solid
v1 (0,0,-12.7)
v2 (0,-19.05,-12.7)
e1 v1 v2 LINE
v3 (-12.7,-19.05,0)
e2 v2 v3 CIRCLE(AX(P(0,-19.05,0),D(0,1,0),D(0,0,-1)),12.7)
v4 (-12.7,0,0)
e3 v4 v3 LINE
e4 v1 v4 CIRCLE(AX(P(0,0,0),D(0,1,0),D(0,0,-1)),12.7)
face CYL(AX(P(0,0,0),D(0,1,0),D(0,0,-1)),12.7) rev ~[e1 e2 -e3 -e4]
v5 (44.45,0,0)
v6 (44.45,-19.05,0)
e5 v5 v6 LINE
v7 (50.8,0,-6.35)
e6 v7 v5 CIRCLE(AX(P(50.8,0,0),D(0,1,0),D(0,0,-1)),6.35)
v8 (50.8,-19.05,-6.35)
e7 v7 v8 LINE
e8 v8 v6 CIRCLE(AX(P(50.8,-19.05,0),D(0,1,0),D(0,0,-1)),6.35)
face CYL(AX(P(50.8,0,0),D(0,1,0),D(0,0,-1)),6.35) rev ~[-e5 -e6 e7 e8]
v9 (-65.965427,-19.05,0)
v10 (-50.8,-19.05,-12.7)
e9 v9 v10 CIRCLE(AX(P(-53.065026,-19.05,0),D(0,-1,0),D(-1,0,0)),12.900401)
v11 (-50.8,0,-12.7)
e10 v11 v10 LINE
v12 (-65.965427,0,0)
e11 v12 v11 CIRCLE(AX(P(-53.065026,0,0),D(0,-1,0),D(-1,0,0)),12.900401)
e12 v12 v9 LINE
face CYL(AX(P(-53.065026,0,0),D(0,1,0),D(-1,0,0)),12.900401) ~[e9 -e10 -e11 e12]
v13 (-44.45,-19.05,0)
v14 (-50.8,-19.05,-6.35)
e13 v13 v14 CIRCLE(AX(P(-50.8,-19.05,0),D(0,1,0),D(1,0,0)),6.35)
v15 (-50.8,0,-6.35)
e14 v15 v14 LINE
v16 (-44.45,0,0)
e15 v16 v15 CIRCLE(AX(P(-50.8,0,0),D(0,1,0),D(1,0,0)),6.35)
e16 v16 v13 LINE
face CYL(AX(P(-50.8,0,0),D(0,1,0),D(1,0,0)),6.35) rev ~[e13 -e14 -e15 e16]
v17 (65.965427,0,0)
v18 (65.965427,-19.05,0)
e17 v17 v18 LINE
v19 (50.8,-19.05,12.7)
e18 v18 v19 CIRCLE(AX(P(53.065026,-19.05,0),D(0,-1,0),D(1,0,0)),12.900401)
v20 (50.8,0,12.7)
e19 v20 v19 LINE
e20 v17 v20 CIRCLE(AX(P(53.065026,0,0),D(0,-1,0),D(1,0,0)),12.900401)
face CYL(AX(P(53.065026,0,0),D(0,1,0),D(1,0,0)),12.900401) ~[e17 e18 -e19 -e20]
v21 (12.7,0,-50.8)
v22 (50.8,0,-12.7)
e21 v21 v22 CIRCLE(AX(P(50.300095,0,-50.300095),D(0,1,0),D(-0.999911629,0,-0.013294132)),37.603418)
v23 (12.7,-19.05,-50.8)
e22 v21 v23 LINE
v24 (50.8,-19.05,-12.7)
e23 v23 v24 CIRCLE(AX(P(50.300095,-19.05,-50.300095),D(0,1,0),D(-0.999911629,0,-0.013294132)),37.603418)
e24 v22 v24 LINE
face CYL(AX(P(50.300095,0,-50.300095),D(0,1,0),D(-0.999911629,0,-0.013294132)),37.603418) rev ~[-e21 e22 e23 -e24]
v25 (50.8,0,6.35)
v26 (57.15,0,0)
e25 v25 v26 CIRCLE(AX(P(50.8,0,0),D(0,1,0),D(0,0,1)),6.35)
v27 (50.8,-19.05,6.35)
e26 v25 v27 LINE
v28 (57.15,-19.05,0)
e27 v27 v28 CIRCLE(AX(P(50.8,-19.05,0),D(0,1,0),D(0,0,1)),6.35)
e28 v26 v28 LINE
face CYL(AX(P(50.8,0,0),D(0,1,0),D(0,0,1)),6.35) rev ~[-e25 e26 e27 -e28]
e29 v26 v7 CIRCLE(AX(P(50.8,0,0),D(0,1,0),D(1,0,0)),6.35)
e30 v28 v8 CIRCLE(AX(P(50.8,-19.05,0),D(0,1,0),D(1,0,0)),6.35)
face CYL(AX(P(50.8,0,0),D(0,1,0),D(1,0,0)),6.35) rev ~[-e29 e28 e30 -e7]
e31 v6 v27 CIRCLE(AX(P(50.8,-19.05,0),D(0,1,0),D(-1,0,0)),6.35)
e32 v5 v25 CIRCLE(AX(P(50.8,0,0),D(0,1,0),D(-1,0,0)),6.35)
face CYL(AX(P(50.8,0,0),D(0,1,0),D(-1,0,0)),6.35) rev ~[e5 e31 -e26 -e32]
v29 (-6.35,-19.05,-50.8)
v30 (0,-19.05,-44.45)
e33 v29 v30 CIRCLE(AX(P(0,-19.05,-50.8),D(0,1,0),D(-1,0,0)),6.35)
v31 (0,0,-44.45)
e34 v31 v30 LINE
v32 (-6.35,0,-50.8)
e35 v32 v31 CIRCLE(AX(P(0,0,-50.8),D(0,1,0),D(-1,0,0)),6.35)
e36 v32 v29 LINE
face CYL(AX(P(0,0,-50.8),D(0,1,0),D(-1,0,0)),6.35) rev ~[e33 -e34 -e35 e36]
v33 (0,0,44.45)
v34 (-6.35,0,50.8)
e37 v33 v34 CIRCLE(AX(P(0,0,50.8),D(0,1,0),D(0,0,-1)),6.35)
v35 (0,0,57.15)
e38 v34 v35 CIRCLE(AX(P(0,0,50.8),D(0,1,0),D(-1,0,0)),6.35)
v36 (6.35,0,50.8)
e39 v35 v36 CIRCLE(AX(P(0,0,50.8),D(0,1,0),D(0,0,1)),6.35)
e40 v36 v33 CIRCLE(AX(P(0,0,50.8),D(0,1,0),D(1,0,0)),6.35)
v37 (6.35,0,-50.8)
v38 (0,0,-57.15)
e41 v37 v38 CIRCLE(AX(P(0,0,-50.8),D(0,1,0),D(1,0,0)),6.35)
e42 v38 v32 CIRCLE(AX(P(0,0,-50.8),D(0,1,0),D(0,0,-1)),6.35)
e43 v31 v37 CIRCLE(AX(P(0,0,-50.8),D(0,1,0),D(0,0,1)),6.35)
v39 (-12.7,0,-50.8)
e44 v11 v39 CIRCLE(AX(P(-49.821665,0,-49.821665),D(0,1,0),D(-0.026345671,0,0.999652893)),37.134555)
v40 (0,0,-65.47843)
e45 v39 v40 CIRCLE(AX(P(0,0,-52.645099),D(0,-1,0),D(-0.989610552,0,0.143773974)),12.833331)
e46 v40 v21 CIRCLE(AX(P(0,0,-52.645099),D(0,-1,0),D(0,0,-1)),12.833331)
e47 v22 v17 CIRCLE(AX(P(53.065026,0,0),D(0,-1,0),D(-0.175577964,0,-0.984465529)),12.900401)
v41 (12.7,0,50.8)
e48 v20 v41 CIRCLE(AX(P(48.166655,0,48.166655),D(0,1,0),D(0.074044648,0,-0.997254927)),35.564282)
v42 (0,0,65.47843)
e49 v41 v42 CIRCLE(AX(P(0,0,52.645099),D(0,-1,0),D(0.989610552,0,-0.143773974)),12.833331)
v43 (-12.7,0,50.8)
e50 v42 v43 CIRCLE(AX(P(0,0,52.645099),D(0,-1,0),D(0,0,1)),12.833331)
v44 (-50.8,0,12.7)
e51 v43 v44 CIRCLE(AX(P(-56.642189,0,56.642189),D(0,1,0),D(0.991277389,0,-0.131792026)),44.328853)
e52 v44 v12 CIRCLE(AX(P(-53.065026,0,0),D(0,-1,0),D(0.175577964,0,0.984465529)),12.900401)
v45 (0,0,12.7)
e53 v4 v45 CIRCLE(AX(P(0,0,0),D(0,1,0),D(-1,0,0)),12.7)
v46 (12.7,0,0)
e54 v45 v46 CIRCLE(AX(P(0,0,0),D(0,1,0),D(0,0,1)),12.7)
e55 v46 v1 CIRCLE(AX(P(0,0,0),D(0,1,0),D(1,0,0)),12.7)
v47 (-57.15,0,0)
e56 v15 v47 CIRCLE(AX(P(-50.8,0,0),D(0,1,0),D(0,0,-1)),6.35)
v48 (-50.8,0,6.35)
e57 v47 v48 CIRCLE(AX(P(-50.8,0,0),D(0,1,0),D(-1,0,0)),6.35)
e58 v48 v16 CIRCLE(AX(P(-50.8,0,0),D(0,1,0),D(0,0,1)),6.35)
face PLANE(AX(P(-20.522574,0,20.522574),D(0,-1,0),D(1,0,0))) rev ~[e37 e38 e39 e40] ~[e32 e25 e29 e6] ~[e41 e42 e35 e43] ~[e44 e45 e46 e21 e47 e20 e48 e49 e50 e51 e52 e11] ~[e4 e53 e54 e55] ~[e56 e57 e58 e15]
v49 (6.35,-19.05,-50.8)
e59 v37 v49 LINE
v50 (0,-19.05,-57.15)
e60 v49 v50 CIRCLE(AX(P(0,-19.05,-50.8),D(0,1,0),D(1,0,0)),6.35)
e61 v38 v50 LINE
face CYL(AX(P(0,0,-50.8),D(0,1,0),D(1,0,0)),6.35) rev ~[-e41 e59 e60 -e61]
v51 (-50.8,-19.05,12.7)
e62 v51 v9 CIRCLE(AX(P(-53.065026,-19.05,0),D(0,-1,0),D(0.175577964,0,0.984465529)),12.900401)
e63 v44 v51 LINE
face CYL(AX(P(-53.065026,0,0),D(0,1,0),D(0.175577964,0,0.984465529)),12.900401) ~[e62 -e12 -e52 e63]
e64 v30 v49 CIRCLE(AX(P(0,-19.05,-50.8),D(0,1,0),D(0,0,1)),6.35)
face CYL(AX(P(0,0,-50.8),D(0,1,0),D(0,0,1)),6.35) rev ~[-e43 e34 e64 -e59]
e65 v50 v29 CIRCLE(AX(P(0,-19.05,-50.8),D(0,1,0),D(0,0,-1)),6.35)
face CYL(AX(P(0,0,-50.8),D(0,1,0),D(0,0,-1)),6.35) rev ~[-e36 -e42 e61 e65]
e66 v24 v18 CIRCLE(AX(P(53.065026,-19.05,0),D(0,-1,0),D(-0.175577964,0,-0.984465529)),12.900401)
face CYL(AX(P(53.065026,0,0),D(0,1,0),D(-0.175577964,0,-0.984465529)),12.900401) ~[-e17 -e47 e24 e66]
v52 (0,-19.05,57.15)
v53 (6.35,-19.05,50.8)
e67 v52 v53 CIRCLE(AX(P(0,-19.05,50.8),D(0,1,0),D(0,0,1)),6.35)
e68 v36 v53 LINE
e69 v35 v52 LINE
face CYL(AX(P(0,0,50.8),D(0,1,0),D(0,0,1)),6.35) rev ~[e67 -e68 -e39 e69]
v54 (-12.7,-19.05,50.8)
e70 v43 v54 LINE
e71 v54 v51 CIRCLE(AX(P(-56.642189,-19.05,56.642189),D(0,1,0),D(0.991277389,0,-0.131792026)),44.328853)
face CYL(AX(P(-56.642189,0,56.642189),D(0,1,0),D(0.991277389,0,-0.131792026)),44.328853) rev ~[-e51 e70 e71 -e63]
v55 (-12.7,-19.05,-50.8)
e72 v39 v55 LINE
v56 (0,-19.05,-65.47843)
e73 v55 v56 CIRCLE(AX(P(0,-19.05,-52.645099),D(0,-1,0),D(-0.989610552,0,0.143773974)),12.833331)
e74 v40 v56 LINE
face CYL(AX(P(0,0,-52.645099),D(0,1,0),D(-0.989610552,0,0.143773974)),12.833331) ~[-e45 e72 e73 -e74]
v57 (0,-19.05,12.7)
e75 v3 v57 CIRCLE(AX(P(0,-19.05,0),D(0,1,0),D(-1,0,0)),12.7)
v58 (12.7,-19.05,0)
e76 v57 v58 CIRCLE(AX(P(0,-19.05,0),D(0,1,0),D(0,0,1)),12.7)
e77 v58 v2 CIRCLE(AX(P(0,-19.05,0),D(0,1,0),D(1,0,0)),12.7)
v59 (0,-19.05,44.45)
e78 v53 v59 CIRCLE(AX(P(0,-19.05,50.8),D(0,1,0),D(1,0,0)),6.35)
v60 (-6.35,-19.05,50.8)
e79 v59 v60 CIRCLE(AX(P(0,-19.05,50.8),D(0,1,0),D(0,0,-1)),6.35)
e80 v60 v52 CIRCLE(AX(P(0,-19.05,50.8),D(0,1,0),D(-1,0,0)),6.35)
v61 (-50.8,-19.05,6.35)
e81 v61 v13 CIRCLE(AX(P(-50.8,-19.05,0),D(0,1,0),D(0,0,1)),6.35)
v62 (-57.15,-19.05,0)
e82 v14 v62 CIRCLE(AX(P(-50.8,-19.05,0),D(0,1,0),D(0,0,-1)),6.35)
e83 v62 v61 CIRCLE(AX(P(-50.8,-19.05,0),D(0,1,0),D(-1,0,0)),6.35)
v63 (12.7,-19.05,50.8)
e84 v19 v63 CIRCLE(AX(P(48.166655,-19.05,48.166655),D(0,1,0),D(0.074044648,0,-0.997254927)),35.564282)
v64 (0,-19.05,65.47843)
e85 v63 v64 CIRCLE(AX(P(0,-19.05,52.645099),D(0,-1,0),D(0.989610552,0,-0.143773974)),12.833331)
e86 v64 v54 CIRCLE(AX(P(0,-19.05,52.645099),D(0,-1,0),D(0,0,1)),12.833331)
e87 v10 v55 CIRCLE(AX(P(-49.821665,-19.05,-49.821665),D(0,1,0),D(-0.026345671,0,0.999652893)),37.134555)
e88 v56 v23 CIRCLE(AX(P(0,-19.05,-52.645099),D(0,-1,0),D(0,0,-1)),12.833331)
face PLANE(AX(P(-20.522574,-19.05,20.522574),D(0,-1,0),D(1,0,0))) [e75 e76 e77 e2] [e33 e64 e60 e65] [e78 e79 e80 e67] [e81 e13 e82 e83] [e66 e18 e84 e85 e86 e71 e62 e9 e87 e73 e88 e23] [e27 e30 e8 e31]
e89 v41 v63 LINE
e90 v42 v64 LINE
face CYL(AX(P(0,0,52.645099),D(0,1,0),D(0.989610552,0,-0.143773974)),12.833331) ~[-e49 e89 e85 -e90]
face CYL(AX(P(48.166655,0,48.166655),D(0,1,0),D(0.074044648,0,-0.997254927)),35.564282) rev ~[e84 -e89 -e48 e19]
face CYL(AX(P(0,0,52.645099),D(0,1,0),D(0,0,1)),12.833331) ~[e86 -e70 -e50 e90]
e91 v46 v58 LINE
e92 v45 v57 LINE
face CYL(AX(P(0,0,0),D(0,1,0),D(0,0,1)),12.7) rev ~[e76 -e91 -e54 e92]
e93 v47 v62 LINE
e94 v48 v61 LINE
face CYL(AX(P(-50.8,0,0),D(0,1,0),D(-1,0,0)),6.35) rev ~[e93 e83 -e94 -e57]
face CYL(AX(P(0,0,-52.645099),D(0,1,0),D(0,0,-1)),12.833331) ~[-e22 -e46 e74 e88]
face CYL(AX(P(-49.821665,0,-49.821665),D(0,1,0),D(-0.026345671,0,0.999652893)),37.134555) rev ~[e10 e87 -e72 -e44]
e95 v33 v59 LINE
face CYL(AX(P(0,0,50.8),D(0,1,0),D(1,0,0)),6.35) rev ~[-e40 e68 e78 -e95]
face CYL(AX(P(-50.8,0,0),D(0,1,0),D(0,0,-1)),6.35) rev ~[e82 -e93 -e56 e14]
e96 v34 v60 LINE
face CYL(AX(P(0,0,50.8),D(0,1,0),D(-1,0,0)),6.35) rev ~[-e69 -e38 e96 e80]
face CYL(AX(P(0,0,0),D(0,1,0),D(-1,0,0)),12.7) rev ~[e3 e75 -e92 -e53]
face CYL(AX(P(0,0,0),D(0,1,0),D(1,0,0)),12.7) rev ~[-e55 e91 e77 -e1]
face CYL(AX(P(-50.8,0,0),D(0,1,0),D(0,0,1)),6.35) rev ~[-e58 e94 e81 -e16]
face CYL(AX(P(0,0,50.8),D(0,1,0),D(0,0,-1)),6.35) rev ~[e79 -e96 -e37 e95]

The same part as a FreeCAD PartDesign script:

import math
import FreeCAD as App
import Part
import Sketcher

V = App.Vector
Q = App.Units.Quantity

doc = App.newDocument("Part")
params = doc.addObject("Spreadsheet::Sheet", "Params")
for row, (alias, value) in enumerate([
    ("sketch1_radius", "0.5 in"),
    ("sketch1_radius2", "0.25 in"),
    ("pad1_length", "0.75 in"),
], start=1):
    params.set(f"A{row}", alias)
    params.set(f"B{row}", "=" + value)
    params.setAlias(f"B{row}", alias)

body = doc.addObject("PartDesign::Body", "Body")

# Sketch on XZ plane
sketch1 = doc.addObject("Sketcher::SketchObject", "Sketch")
body.addObject(sketch1)
sketch1.AttachmentSupport = (doc.XZ_Plane, [""])
sketch1.MapMode = "FlatFace"
sketch1.addGeometry([
    Part.ArcOfCircle(Part.Circle(V(48, 48, 0), V(0, 0, 1), 36), math.radians(176), math.radians(274)),  # 0
    Part.ArcOfCircle(Part.Circle(V(0, 53, 0), V(0, 0, 1), 13), math.radians(-8), math.radians(90)),  # 1
    Part.ArcOfCircle(Part.Circle(V(0, 53, 0), V(0, 0, 1), 13), math.radians(90), math.radians(188)),  # 2
    Part.ArcOfCircle(Part.Circle(V(-57, 57, 0), V(0, 0, 1), 44), math.radians(-82), math.radians(-8)),  # 3
    Part.ArcOfCircle(Part.Circle(V(-53, 0, 0), V(0, 0, 1), 13), math.radians(80), math.radians(180)),  # 4
    Part.ArcOfCircle(Part.Circle(V(-53, 0, 0), V(0, 0, 1), 13), math.radians(180), math.radians(280)),  # 5
    Part.ArcOfCircle(Part.Circle(V(-50, -50, 0), V(0, 0, 1), 37), math.radians(-2), math.radians(92)),  # 6
    Part.ArcOfCircle(Part.Circle(V(0, -53, 0), V(0, 0, 1), 13), math.radians(172), math.radians(270)),  # 7
    Part.ArcOfCircle(Part.Circle(V(0, -53, 0), V(0, 0, 1), 13), math.radians(-90), math.radians(8)),  # 8
    Part.ArcOfCircle(Part.Circle(V(50, -50, 0), V(0, 0, 1), 38), math.radians(89), math.radians(181)),  # 9
    Part.ArcOfCircle(Part.Circle(V(53, 0, 0), V(0, 0, 1), 13), math.radians(-100), math.radians(0)),  # 10
    Part.ArcOfCircle(Part.Circle(V(53, 0, 0), V(0, 0, 1), 13), math.radians(0), math.radians(100)),  # 11
    Part.ArcOfCircle(Part.Circle(V(0, 0, 0), V(0, 0, 1), 13), math.radians(90), math.radians(180)),  # 12
    Part.ArcOfCircle(Part.Circle(V(0, 0, 0), V(0, 0, 1), 13), math.radians(0), math.radians(90)),  # 13
    Part.ArcOfCircle(Part.Circle(V(0, 0, 0), V(0, 0, 1), 13), math.radians(-90), math.radians(0)),  # 14
    Part.ArcOfCircle(Part.Circle(V(0, 0, 0), V(0, 0, 1), 13), math.radians(180), math.radians(270)),  # 15
    Part.ArcOfCircle(Part.Circle(V(51, 0, 0), V(0, 0, 1), 6), math.radians(90), math.radians(180)),  # 16
    Part.ArcOfCircle(Part.Circle(V(51, 0, 0), V(0, 0, 1), 6), math.radians(0), math.radians(90)),  # 17
    Part.ArcOfCircle(Part.Circle(V(51, 0, 0), V(0, 0, 1), 6), math.radians(-90), math.radians(0)),  # 18
    Part.ArcOfCircle(Part.Circle(V(51, 0, 0), V(0, 0, 1), 6), math.radians(180), math.radians(270)),  # 19
    Part.ArcOfCircle(Part.Circle(V(0, -51, 0), V(0, 0, 1), 6), math.radians(90), math.radians(180)),  # 20
    Part.ArcOfCircle(Part.Circle(V(0, -51, 0), V(0, 0, 1), 6), math.radians(0), math.radians(90)),  # 21
    Part.ArcOfCircle(Part.Circle(V(0, -51, 0), V(0, 0, 1), 6), math.radians(-90), math.radians(0)),  # 22
    Part.ArcOfCircle(Part.Circle(V(0, -51, 0), V(0, 0, 1), 6), math.radians(180), math.radians(270)),  # 23
    Part.ArcOfCircle(Part.Circle(V(-51, 0, 0), V(0, 0, 1), 6), math.radians(180), math.radians(270)),  # 24
    Part.ArcOfCircle(Part.Circle(V(-51, 0, 0), V(0, 0, 1), 6), math.radians(90), math.radians(180)),  # 25
    Part.ArcOfCircle(Part.Circle(V(-51, 0, 0), V(0, 0, 1), 6), math.radians(0), math.radians(90)),  # 26
    Part.ArcOfCircle(Part.Circle(V(-51, 0, 0), V(0, 0, 1), 6), math.radians(-90), math.radians(0)),  # 27
    Part.ArcOfCircle(Part.Circle(V(0, 51, 0), V(0, 0, 1), 6), math.radians(0), math.radians(90)),  # 28
    Part.ArcOfCircle(Part.Circle(V(0, 51, 0), V(0, 0, 1), 6), math.radians(-90), math.radians(0)),  # 29
    Part.ArcOfCircle(Part.Circle(V(0, 51, 0), V(0, 0, 1), 6), math.radians(180), math.radians(270)),  # 30
    Part.ArcOfCircle(Part.Circle(V(0, 51, 0), V(0, 0, 1), 6), math.radians(90), math.radians(180)),  # 31
], False)
sketch1.addConstraint([
    Sketcher.Constraint("Coincident", 0, 1, 1, 1),
    Sketcher.Constraint("Tangent", 1, 2, 2, 1),
    Sketcher.Constraint("Coincident", 2, 2, 3, 2),
    Sketcher.Constraint("Coincident", 3, 1, 4, 1),
    Sketcher.Constraint("Tangent", 4, 2, 5, 1),
    Sketcher.Constraint("Coincident", 5, 2, 6, 2),
    Sketcher.Constraint("Coincident", 6, 1, 7, 1),
    Sketcher.Constraint("Tangent", 7, 2, 8, 1),
    Sketcher.Constraint("Coincident", 8, 2, 9, 2),
    Sketcher.Constraint("Coincident", 9, 1, 10, 1),
    Sketcher.Constraint("Tangent", 10, 2, 11, 1),
    Sketcher.Constraint("Coincident", 11, 2, 0, 2),
    Sketcher.Constraint("Tangent", 12, 1, 13, 2),
    Sketcher.Constraint("Tangent", 13, 1, 14, 2),
    Sketcher.Constraint("Tangent", 14, 1, 15, 2),
    Sketcher.Constraint("Tangent", 15, 1, 12, 2),
    Sketcher.Constraint("Tangent", 16, 1, 17, 2),
    Sketcher.Constraint("Tangent", 17, 1, 18, 2),
    Sketcher.Constraint("Tangent", 18, 1, 19, 2),
    Sketcher.Constraint("Tangent", 19, 1, 16, 2),
    Sketcher.Constraint("Tangent", 20, 1, 21, 2),
    Sketcher.Constraint("Tangent", 21, 1, 22, 2),
    Sketcher.Constraint("Tangent", 22, 1, 23, 2),
    Sketcher.Constraint("Tangent", 23, 1, 20, 2),
    Sketcher.Constraint("Tangent", 24, 1, 25, 2),
    Sketcher.Constraint("Tangent", 25, 1, 26, 2),
    Sketcher.Constraint("Tangent", 26, 1, 27, 2),
    Sketcher.Constraint("Tangent", 27, 1, 24, 2),
    Sketcher.Constraint("Tangent", 28, 1, 29, 2),
    Sketcher.Constraint("Tangent", 29, 1, 30, 2),
    Sketcher.Constraint("Tangent", 30, 1, 31, 2),
    Sketcher.Constraint("Tangent", 31, 1, 28, 2),
    Sketcher.Constraint("Coincident", 12, 3, -1, 1),
    Sketcher.Constraint("Equal", 1, 2),
    Sketcher.Constraint("Equal", 4, 5),
    Sketcher.Constraint("Equal", 2, 7),
    Sketcher.Constraint("Equal", 7, 8),
    Sketcher.Constraint("Equal", 5, 10),
    Sketcher.Constraint("Equal", 10, 11),
    Sketcher.Constraint("Equal", 12, 13),
    Sketcher.Constraint("Equal", 16, 17),
    Sketcher.Constraint("Equal", 19, 20),
    Sketcher.Constraint("Equal", 20, 21),
    Sketcher.Constraint("Equal", 23, 24),
    Sketcher.Constraint("Equal", 24, 25),
    Sketcher.Constraint("Equal", 27, 28),
    Sketcher.Constraint("Equal", 28, 29),
    Sketcher.Constraint("Symmetric", 1, 3, 7, 3, -1, 1),
    Sketcher.Constraint("Symmetric", 4, 3, 10, 3, -1, 1),
    Sketcher.Constraint("Symmetric", 16, 3, 24, 3, -1, 1),
    Sketcher.Constraint("Symmetric", 20, 3, 28, 3, -1, 1),
    Sketcher.Constraint("Symmetric", 0, 1, 2, 2, -2),
    Sketcher.Constraint("Symmetric", 5, 2, 9, 1, -2),
    Sketcher.Constraint("Symmetric", 21, 1, 23, 1, -2),
    Sketcher.Constraint("Symmetric", 16, 1, 25, 1, -2),
    Sketcher.Constraint("PointOnObject", 1, 2, -2),
    Sketcher.Constraint("PointOnObject", 4, 2, -1),
    Sketcher.Constraint("PointOnObject", 7, 2, -2),
    Sketcher.Constraint("PointOnObject", 10, 2, -1),
    Sketcher.Constraint("PointOnObject", 12, 1, -2),
    Sketcher.Constraint("PointOnObject", 13, 1, -1),
    Sketcher.Constraint("PointOnObject", 14, 1, -2),
    Sketcher.Constraint("PointOnObject", 15, 1, -1),
    Sketcher.Constraint("PointOnObject", 17, 1, -1),
    Sketcher.Constraint("PointOnObject", 19, 1, -1),
    Sketcher.Constraint("PointOnObject", 20, 1, -2),
    Sketcher.Constraint("PointOnObject", 22, 1, -2),
    Sketcher.Constraint("PointOnObject", 24, 1, -1),
    Sketcher.Constraint("PointOnObject", 26, 1, -1),
    Sketcher.Constraint("PointOnObject", 29, 1, -2),
    Sketcher.Constraint("PointOnObject", 31, 1, -2),
    Sketcher.Constraint("Horizontal", 31, 3, 0, 1),
    Sketcher.Constraint("Horizontal", 23, 3, 6, 1),
    Sketcher.Constraint("Horizontal", 6, 1, 8, 2),
    Sketcher.Constraint("Horizontal", 3, 1, 11, 2),
    Sketcher.Constraint("Horizontal", 11, 2, 12, 1),
    Sketcher.Constraint("Horizontal", 9, 1, 14, 1),
    Sketcher.Constraint("Horizontal", 8, 2, 21, 1),
    Sketcher.Constraint("Horizontal", 2, 2, 28, 1),
    Sketcher.Constraint("Horizontal", 28, 1, 30, 1),
    Sketcher.Constraint("Vertical", 27, 3, 3, 1),
    Sketcher.Constraint("Vertical", 8, 2, 13, 1),
    Sketcher.Constraint("Vertical", 11, 2, 16, 1),
    Sketcher.Constraint("Vertical", 16, 1, 18, 1),
    Sketcher.Constraint("Vertical", 25, 1, 27, 1),
    Sketcher.Constraint("Radius", 12, Q("0.5 in")),
    Sketcher.Constraint("Radius", 16, Q("0.25 in")),
    Sketcher.Constraint("DistanceX", -1, 1, 16, 3, Q("2 in")),
    Sketcher.Constraint("DistanceY", 20, 3, -1, 1, Q("2 in")),
    Sketcher.Constraint("Radius", 4, Q("12.900401 mm")),
    Sketcher.Constraint("Radius", 0, Q("35.564282 mm")),
    Sketcher.Constraint("Radius", 1, Q("12.833331 mm")),
    Sketcher.Constraint("Radius", 9, Q("37.603418 mm")),
    Sketcher.Constraint("Radius", 3, Q("44.328853 mm")),
    Sketcher.Constraint("Radius", 6, Q("37.134555 mm")),
])
sketch1.setExpression("Constraints[85]", "Params.sketch1_radius")
sketch1.setExpression("Constraints[86]", "Params.sketch1_radius2")
pad1 = doc.addObject("PartDesign::Pad", "Pad")
body.addObject(pad1)
pad1.Profile = sketch1
pad1.setExpression("Length", "Params.pad1_length")

doc.recompute()
